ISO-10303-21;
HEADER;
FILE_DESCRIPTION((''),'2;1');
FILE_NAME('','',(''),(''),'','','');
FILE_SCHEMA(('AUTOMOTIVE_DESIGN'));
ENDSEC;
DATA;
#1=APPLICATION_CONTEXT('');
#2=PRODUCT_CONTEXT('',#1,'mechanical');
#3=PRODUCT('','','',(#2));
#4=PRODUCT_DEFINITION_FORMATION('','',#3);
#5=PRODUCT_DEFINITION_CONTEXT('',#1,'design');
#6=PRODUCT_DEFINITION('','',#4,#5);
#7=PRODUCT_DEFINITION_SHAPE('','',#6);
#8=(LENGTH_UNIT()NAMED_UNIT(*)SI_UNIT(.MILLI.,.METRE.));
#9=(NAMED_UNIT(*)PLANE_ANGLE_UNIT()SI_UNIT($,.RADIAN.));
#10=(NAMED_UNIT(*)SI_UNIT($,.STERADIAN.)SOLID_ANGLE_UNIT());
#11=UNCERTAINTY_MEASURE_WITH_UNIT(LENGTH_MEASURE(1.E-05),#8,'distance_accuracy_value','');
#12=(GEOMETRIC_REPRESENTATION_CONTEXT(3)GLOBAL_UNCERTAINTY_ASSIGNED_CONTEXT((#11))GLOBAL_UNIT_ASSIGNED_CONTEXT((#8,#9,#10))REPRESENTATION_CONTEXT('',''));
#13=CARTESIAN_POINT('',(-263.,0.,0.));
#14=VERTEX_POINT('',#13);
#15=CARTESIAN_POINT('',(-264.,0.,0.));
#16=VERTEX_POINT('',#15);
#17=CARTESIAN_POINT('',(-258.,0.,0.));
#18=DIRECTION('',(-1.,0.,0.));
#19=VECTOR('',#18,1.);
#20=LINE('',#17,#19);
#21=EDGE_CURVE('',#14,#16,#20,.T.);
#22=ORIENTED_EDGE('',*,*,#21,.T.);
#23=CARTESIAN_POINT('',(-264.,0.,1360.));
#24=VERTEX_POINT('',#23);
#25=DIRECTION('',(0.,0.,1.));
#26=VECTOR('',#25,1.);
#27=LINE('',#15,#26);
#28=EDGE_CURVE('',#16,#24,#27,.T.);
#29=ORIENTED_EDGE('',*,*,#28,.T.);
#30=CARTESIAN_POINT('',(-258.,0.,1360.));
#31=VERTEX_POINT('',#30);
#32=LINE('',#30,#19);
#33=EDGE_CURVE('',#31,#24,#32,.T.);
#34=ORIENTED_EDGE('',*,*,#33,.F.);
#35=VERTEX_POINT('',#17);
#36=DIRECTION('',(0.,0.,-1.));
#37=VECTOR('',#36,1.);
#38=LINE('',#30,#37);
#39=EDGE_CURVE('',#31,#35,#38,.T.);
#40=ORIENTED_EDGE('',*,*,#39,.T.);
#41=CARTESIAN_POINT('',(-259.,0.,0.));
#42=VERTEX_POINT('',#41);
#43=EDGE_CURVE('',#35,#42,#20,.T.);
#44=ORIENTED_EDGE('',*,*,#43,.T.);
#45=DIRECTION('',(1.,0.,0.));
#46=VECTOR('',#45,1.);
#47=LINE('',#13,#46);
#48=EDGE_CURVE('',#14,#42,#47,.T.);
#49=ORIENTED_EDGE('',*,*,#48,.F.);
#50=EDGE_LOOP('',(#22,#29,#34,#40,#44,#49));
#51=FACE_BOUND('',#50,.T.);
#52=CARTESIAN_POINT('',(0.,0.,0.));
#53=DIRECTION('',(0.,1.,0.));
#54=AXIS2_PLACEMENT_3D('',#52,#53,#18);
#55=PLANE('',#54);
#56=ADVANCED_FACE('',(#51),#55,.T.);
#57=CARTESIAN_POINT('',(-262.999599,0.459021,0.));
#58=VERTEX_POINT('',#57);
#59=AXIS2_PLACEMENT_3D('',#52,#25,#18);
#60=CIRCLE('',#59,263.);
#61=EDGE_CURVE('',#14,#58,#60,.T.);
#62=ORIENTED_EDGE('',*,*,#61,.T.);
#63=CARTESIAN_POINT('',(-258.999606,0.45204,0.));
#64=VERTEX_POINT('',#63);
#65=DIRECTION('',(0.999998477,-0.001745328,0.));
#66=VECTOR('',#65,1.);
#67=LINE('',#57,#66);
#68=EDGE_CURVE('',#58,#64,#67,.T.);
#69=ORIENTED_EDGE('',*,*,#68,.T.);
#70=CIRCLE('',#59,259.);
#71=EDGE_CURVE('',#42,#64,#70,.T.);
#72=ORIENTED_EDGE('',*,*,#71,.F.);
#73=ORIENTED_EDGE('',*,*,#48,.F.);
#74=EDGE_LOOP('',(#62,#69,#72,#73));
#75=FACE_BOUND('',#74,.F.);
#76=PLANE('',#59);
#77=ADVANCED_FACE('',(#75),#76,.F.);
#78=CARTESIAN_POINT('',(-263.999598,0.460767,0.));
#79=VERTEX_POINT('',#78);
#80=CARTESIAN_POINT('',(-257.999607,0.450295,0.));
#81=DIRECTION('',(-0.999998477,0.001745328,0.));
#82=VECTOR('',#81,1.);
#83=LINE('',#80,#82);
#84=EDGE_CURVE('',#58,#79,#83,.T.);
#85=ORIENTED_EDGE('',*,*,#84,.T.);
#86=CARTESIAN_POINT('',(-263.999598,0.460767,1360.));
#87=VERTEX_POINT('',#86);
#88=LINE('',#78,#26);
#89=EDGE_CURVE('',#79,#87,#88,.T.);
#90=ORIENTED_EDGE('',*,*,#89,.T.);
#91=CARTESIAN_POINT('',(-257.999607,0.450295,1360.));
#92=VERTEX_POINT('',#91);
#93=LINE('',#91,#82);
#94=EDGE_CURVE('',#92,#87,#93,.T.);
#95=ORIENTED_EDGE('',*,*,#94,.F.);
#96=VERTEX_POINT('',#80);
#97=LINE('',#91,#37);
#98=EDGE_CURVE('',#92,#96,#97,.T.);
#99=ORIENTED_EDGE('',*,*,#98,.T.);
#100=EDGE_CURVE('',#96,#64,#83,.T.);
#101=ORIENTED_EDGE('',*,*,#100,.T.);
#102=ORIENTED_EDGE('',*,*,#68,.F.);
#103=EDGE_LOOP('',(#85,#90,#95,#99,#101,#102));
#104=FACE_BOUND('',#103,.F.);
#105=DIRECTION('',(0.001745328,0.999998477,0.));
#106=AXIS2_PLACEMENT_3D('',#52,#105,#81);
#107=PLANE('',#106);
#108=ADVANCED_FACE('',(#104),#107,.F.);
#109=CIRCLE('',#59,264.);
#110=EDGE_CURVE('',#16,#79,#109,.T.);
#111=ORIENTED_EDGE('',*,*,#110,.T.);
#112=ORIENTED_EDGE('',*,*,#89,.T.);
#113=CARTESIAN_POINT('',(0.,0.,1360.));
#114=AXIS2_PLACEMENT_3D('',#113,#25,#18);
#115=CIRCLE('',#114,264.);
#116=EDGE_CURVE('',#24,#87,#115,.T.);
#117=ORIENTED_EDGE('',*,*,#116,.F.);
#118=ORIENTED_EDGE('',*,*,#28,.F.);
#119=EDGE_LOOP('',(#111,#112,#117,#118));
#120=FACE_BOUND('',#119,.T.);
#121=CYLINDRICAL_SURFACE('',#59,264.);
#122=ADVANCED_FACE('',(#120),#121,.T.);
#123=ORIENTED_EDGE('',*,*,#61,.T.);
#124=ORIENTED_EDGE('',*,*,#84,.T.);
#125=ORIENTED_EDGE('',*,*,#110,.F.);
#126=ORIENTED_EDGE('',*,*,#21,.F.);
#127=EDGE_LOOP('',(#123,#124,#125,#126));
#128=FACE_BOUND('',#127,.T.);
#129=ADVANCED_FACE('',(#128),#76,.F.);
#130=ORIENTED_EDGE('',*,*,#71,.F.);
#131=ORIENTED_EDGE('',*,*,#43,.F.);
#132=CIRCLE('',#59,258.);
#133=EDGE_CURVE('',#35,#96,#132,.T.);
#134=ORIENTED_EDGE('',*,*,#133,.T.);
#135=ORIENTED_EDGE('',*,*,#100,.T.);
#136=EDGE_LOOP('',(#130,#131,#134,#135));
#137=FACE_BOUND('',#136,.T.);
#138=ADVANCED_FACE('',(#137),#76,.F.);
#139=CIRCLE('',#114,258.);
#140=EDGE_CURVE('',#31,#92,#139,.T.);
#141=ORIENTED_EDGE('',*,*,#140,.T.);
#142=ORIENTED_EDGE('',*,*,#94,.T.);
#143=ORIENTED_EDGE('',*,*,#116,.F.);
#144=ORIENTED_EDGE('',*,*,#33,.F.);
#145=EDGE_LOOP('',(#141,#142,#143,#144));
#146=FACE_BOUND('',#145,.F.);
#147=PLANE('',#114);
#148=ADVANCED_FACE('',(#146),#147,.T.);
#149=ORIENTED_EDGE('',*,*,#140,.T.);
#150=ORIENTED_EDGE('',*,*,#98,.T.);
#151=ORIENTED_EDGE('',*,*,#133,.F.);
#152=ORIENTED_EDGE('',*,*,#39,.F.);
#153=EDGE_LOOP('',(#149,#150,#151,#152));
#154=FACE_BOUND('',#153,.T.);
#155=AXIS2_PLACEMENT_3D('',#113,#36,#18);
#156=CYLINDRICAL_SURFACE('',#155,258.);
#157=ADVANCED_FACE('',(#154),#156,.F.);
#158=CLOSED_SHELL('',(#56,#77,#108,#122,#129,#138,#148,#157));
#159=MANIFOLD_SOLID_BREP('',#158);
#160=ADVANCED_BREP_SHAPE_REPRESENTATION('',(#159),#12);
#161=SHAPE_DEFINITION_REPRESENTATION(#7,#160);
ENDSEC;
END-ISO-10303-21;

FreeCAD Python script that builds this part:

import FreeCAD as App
import Part
import Sketcher
Q = App.Units.Quantity

doc = App.newDocument("Part")
body = doc.addObject("PartDesign::Body", "Body")

sketch1 = doc.addObject("Sketcher::SketchObject", "Sketch")
body.addObject(sketch1)
sketch1.AttachmentSupport = (doc.XZ_Plane, [""])
sketch1.MapMode = "FlatFace"
sketch1.addGeometry(Part.LineSegment(App.Vector(-264, 1360, 0), App.Vector(-258, 1360, 0)), False)
sketch1.addGeometry(Part.LineSegment(App.Vector(-258, 1360, 0), App.Vector(-258, 0, 0)), False)
sketch1.addGeometry(Part.LineSegment(App.Vector(-258, 0, 0), App.Vector(-264, 0, 0)), False)
sketch1.addGeometry(Part.LineSegment(App.Vector(-264, 0, 0), App.Vector(-264, 1360, 0)), False)
sketch1.addConstraint(Sketcher.Constraint("Coincident", 0, 2, 1, 1))
sketch1.addConstraint(Sketcher.Constraint("Coincident", 1, 2, 2, 1))
sketch1.addConstraint(Sketcher.Constraint("Coincident", 2, 2, 3, 1))
sketch1.addConstraint(Sketcher.Constraint("Coincident", 3, 2, 0, 1))
sketch1.addConstraint(Sketcher.Constraint("Horizontal", 0))
sketch1.addConstraint(Sketcher.Constraint("Vertical", 1))
sketch1.addConstraint(Sketcher.Constraint("Horizontal", 2))
sketch1.addConstraint(Sketcher.Constraint("Vertical", 3))
sketch1.addConstraint(Sketcher.Constraint("PointOnObject", 1, 2, -1))
sketch1.addConstraint(Sketcher.Constraint("DistanceX", 0, 1, 0, 2, Q("6 mm")))
sketch1.addConstraint(Sketcher.Constraint("DistanceY", 1, 2, 1, 1, Q("1360 mm")))
sketch1.addConstraint(Sketcher.Constraint("DistanceX", 0, 2, -1, 1, Q("258 mm")))
revolution = doc.addObject("PartDesign::Revolution", "Revolution")
body.addObject(revolution)
revolution.Profile = sketch1
revolution.ReferenceAxis = (sketch1, ["V_Axis"])
revolution.Angle = 359.9

doc.recompute()
